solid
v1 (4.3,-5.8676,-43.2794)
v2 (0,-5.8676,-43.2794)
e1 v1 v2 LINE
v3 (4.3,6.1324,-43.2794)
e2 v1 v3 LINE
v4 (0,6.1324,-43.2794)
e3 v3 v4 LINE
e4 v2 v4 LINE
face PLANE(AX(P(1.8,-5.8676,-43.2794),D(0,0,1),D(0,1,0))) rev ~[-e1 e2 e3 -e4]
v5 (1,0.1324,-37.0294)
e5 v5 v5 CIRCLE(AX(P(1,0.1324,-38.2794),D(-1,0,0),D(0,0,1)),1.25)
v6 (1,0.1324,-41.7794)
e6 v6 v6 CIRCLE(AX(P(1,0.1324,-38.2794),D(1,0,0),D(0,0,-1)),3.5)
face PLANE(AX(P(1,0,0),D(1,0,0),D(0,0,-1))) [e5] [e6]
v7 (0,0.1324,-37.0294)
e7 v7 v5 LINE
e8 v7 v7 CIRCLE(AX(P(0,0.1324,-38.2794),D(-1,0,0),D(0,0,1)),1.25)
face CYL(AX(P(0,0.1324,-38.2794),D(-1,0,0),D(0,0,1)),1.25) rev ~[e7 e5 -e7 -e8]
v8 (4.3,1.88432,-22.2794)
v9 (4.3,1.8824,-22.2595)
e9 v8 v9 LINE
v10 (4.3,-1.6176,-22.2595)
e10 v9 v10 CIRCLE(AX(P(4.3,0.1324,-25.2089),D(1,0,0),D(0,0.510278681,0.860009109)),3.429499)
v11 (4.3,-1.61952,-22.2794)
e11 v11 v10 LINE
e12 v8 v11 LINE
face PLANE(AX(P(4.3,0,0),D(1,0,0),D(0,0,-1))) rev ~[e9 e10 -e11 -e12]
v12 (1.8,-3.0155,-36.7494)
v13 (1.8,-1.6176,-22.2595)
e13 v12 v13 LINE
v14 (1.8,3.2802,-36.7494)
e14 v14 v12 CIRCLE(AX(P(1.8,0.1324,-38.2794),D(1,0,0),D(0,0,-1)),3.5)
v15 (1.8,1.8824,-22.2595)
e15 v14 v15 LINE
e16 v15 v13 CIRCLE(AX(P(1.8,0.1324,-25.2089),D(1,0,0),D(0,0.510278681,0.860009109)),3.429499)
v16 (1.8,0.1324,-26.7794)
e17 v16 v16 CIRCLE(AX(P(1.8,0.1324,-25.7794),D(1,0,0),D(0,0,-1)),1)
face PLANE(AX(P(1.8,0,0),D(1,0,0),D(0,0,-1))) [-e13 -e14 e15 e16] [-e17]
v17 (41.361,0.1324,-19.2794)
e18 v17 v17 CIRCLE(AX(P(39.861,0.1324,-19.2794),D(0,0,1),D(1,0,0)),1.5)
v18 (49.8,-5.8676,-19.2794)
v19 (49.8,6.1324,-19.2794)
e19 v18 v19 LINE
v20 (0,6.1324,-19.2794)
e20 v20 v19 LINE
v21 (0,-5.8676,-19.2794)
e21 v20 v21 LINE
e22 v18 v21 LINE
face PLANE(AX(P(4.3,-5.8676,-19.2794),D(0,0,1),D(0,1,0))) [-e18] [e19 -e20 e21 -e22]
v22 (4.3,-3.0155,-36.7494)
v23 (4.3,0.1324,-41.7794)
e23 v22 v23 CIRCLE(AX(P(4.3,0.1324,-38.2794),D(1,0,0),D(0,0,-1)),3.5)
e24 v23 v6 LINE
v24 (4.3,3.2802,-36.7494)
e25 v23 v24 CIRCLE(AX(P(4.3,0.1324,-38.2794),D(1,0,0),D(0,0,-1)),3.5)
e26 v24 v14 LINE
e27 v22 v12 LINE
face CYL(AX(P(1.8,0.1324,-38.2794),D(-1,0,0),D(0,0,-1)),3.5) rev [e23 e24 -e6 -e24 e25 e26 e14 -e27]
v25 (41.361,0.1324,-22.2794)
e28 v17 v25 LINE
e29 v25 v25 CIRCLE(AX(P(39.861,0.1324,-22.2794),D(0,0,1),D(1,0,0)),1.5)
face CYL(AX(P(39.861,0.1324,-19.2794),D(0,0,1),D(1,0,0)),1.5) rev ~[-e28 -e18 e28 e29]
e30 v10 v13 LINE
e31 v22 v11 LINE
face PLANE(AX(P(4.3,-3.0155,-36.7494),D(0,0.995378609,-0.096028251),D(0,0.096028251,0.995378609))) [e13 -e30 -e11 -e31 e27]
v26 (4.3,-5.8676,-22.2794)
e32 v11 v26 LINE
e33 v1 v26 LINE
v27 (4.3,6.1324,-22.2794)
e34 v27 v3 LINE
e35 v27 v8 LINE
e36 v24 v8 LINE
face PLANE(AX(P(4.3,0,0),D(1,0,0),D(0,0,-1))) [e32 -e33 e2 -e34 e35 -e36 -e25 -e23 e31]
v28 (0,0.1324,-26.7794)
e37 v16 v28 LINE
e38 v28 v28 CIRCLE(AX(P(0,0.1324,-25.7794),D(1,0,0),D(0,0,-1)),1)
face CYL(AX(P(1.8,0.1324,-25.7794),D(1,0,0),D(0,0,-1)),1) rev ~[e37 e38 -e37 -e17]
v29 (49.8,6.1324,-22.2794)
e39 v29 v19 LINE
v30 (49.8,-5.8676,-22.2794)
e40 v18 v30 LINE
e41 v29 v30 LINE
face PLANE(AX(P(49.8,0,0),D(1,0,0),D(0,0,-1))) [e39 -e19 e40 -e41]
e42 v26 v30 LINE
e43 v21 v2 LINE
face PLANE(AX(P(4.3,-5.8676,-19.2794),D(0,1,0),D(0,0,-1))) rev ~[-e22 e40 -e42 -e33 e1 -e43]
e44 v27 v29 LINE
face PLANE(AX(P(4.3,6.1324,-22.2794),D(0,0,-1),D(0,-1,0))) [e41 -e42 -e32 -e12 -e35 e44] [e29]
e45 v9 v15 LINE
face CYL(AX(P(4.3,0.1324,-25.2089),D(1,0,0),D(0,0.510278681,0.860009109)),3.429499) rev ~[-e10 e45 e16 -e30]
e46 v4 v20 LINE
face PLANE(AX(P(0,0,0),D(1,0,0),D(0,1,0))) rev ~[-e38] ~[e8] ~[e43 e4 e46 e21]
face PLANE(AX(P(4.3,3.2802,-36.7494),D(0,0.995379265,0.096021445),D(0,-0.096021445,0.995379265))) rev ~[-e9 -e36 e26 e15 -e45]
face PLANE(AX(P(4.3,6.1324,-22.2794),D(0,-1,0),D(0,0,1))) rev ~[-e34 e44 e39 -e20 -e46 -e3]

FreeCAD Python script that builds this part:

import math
import FreeCAD as App
import Part
import Sketcher

V = App.Vector
Q = App.Units.Quantity


def add_polygon(sketch, points):
    """Adds a closed chain of lines whose ends are joined by coincident constraints."""
    first, n = sketch.GeometryCount, len(points)
    for a, b in zip(points, points[1:] + points[:1]):
        sketch.addGeometry(Part.LineSegment(App.Vector(*a, 0), App.Vector(*b, 0)), False)
    for i in range(n):
        sketch.addConstraint(Sketcher.Constraint("Coincident", first + i, 2, first + (i + 1) % n, 1))

doc = App.newDocument("Part")
body = doc.addObject("PartDesign::Body", "Body")

# Sketch on YZ plane
sketch1 = body.newObject("Sketcher::SketchObject", "Sketch")
sketch1.AttachmentSupport = (doc.getObject("YZ_Plane"), [""])
sketch1.MapMode = "FlatFace"
add_polygon(sketch1, [(6.1324, -43.2794), (6.1324, -19.2794), (-5.8676, -19.2794), (-5.8676, -43.2794)])  # lines 0-3
sketch1.addConstraint(Sketcher.Constraint("Vertical", 0))
sketch1.addConstraint(Sketcher.Constraint("Horizontal", 1))
sketch1.addConstraint(Sketcher.Constraint("Vertical", 2))
sketch1.addConstraint(Sketcher.Constraint("Horizontal", 3))
sketch1.addConstraint(Sketcher.Constraint("DistanceX", 1, 2, 1, 1, Q("12 mm")))
sketch1.addConstraint(Sketcher.Constraint("DistanceY", 0, 1, 0, 2, Q("24 mm")))
sketch1.addConstraint(Sketcher.Constraint("DistanceX", -1, 1, 0, 2, Q("6.1324 mm")))
sketch1.addConstraint(Sketcher.Constraint("DistanceY", 0, 2, -1, 1, Q("19.2794 mm")))
pad1 = body.newObject("PartDesign::Pad", "Pad")
pad1.Profile = sketch1
pad1.Length = 1.8

# Sketch on YZ plane
sketch2 = body.newObject("Sketcher::SketchObject", "Sketch001")
sketch2.AttachmentSupport = (doc.getObject("YZ_Plane"), [""])
sketch2.MapMode = "FlatFace"
sketch2.AttachmentOffset = App.Placement(V(0, 0, 1.8), App.Rotation())
sketch2.addGeometry(Part.Circle(V(0.1324, -38.2794, 0), V(0, 0, 1), 3.5), False)
sketch2.addConstraint(Sketcher.Constraint("Diameter", 0, Q("7 mm")))
sketch2.addConstraint(Sketcher.Constraint("DistanceX", -1, 1, 0, 3, Q("0.1324 mm")))
sketch2.addConstraint(Sketcher.Constraint("DistanceY", 0, 3, -1, 1, Q("38.2794 mm")))
pocket1 = body.newObject("PartDesign::Pocket", "Pocket")
pocket1.Profile = sketch2
pocket1.Length = 0.8

# Sketch on YZ plane
sketch3 = body.newObject("Sketcher::SketchObject", "Sketch002")
sketch3.AttachmentSupport = (doc.getObject("YZ_Plane"), [""])
sketch3.MapMode = "FlatFace"
sketch3.AttachmentOffset = App.Placement(V(0, 0, 1.8), App.Rotation())
add_polygon(sketch3, [(6.1324, -43.2794), (6.1324, -19.2794), (-5.8676, -19.2794), (-5.8676, -43.2794)])  # lines 0-3
sketch3.addGeometry(Part.Circle(V(0.1324, -38.2794, 0), V(0, 0, 1), 3.5), False)  # 4
sketch3.addConstraint(Sketcher.Constraint("Vertical", 0))
sketch3.addConstraint(Sketcher.Constraint("Horizontal", 1))
sketch3.addConstraint(Sketcher.Constraint("Vertical", 2))
sketch3.addConstraint(Sketcher.Constraint("Horizontal", 3))
sketch3.addConstraint(Sketcher.Constraint("Diameter", 4, Q("7 mm")))
sketch3.addConstraint(Sketcher.Constraint("DistanceX", 1, 2, 1, 1, Q("12 mm")))
sketch3.addConstraint(Sketcher.Constraint("DistanceY", 0, 1, 0, 2, Q("24 mm")))
sketch3.addConstraint(Sketcher.Constraint("DistanceX", 4, 3, 0, 2, Q("6 mm")))
sketch3.addConstraint(Sketcher.Constraint("DistanceY", 4, 3, 0, 2, Q("19 mm")))
sketch3.addConstraint(Sketcher.Constraint("DistanceX", -1, 1, 4, 3, Q("0.1324 mm")))
sketch3.addConstraint(Sketcher.Constraint("DistanceY", 4, 3, -1, 1, Q("38.2794 mm")))
pad2 = body.newObject("PartDesign::Pad", "Pad001")
pad2.Profile = sketch3
pad2.Length = 2.5

# Sketch on YZ plane
sketch4 = body.newObject("Sketcher::SketchObject", "Sketch003")
sketch4.AttachmentSupport = (doc.getObject("YZ_Plane"), [""])
sketch4.MapMode = "FlatFace"
sketch4.AttachmentOffset = App.Placement(V(0, 0, 4.3), App.Rotation())
sketch4.addGeometry(Part.ArcOfCircle(Part.Circle(V(0.1324, -38.2794, 0), V(0, 0, 1), 3.5), math.radians(25.922243), math.radians(154.078472)), False)
sketch4.addGeometry(Part.LineSegment(V(3.2802, -36.7494, 0), V(1.8824, -22.2595, 0)), False)
sketch4.addGeometry(Part.ArcOfCircle(Part.Circle(V(0.1324, -25.2089, 0), V(0, 0, 1), 3.429499), math.radians(59.317606), math.radians(120.682394)), False)
sketch4.addGeometry(Part.LineSegment(V(-1.6176, -22.2595, 0), V(-3.0155, -36.7494, 0)), False)
sketch4.addConstraint(Sketcher.Constraint("Coincident", 0, 1, 1, 1))
sketch4.addConstraint(Sketcher.Constraint("Coincident", 1, 2, 2, 1))
sketch4.addConstraint(Sketcher.Constraint("Coincident", 2, 2, 3, 1))
sketch4.addConstraint(Sketcher.Constraint("Coincident", 3, 2, 0, 2))
sketch4.addConstraint(Sketcher.Constraint("Horizontal", 1, 2, 2, 2))
sketch4.addConstraint(Sketcher.Constraint("Horizontal", 0, 1, 3, 2))
sketch4.addConstraint(Sketcher.Constraint("Vertical", 0, 3, 2, 3))
sketch4.addConstraint(Sketcher.Constraint("Radius", 0, Q("3.5 mm")))
sketch4.addConstraint(Sketcher.Constraint("DistanceX", 2, 2, 1, 2, Q("3.5 mm")))
sketch4.addConstraint(Sketcher.Constraint("DistanceY", 0, 3, 0, 1, Q("1.53 mm")))
sketch4.addConstraint(Sketcher.Constraint("Angle", 1, Q("95.51 deg")))
sketch4.addConstraint(Sketcher.Constraint("Radius", 2, Q("3.4295 mm")))
sketch4.addConstraint(Sketcher.Constraint("DistanceY", 2, 3, -1, 1, Q("25.209 mm")))
sketch4.addConstraint(Sketcher.Constraint("DistanceX", -1, 1, 0, 3, Q("0.1324 mm")))
pocket2 = body.newObject("PartDesign::Pocket", "Pocket001")
pocket2.Profile = sketch4
pocket2.Length = 2.5

# Sketch on YZ plane
sketch5 = body.newObject("Sketcher::SketchObject", "Sketch004")
sketch5.AttachmentSupport = (doc.getObject("YZ_Plane"), [""])
sketch5.MapMode = "FlatFace"
sketch5.addGeometry(Part.Circle(V(0.1324, -38.2794, 0), V(0, 0, 1), 1.25), False)
sketch5.addConstraint(Sketcher.Constraint("Diameter", 0, Q("2.5 mm")))
sketch5.addConstraint(Sketcher.Constraint("DistanceX", -1, 1, 0, 3, Q("0.1324 mm")))
sketch5.addConstraint(Sketcher.Constraint("DistanceY", 0, 3, -1, 1, Q("38.2794 mm")))
pocket3 = body.newObject("PartDesign::Pocket", "Pocket002")
pocket3.Profile = sketch5
pocket3.Length = 2.5
pocket3.Reversed = True

# Sketch on YZ plane
sketch6 = body.newObject("Sketcher::SketchObject", "Sketch005")
sketch6.AttachmentSupport = (doc.getObject("YZ_Plane"), [""])
sketch6.MapMode = "FlatFace"
sketch6.AttachmentOffset = App.Placement(V(0, 0, 4.3), App.Rotation())
add_polygon(sketch6, [(-5.8676, -22.2794), (6.1324, -22.2794), (6.1324, -19.2794), (-5.8676, -19.2794)])  # lines 0-3
sketch6.addConstraint(Sketcher.Constraint("Horizontal", 0))
sketch6.addConstraint(Sketcher.Constraint("Vertical", 1))
sketch6.addConstraint(Sketcher.Constraint("Horizontal", 2))
sketch6.addConstraint(Sketcher.Constraint("Vertical", 3))
sketch6.addConstraint(Sketcher.Constraint("DistanceY", 1, 1, 1, 2, Q("3 mm")))
sketch6.addConstraint(Sketcher.Constraint("DistanceX", 0, 1, 0, 2, Q("12 mm")))
sketch6.addConstraint(Sketcher.Constraint("DistanceX", -1, 1, 0, 2, Q("6.1324 mm")))
sketch6.addConstraint(Sketcher.Constraint("DistanceY", 0, 2, -1, 1, Q("22.2794 mm")))
pad3 = body.newObject("PartDesign::Pad", "Pad002")
pad3.Profile = sketch6
pad3.Length = 45.5

# Sketch on XY plane
sketch7 = body.newObject("Sketcher::SketchObject", "Sketch006")
sketch7.AttachmentSupport = (doc.getObject("XY_Plane"), [""])
sketch7.MapMode = "FlatFace"
sketch7.AttachmentOffset = App.Placement(V(0, 0, -19.2794), App.Rotation())
sketch7.addGeometry(Part.Circle(V(39.861, 0.1324, 0), V(0, 0, 1), 1.5), False)
sketch7.addConstraint(Sketcher.Constraint("Diameter", 0, Q("3 mm")))
sketch7.addConstraint(Sketcher.Constraint("DistanceX", -1, 1, 0, 3, Q("39.861 mm")))
sketch7.addConstraint(Sketcher.Constraint("DistanceY", -1, 1, 0, 3, Q("0.1324 mm")))
pocket4 = body.newObject("PartDesign::Pocket", "Pocket003")
pocket4.Profile = sketch7
pocket4.Length = 40

# Sketch on YZ plane
sketch8 = body.newObject("Sketcher::SketchObject", "Sketch007")
sketch8.AttachmentSupport = (doc.getObject("YZ_Plane"), [""])
sketch8.MapMode = "FlatFace"
sketch8.AttachmentOffset = App.Placement(V(0, 0, 1.8), App.Rotation())
sketch8.addGeometry(Part.Circle(V(0.1324, -25.7794, 0), V(0, 0, 1), 1), False)
sketch8.addConstraint(Sketcher.Constraint("Diameter", 0, Q("2 mm")))
sketch8.addConstraint(Sketcher.Constraint("DistanceX", -1, 1, 0, 3, Q("0.1324 mm")))
sketch8.addConstraint(Sketcher.Constraint("DistanceY", 0, 3, -1, 1, Q("25.7794 mm")))
pocket5 = body.newObject("PartDesign::Pocket", "Pocket004")
pocket5.Profile = sketch8
pocket5.Length = 10

doc.recompute()
